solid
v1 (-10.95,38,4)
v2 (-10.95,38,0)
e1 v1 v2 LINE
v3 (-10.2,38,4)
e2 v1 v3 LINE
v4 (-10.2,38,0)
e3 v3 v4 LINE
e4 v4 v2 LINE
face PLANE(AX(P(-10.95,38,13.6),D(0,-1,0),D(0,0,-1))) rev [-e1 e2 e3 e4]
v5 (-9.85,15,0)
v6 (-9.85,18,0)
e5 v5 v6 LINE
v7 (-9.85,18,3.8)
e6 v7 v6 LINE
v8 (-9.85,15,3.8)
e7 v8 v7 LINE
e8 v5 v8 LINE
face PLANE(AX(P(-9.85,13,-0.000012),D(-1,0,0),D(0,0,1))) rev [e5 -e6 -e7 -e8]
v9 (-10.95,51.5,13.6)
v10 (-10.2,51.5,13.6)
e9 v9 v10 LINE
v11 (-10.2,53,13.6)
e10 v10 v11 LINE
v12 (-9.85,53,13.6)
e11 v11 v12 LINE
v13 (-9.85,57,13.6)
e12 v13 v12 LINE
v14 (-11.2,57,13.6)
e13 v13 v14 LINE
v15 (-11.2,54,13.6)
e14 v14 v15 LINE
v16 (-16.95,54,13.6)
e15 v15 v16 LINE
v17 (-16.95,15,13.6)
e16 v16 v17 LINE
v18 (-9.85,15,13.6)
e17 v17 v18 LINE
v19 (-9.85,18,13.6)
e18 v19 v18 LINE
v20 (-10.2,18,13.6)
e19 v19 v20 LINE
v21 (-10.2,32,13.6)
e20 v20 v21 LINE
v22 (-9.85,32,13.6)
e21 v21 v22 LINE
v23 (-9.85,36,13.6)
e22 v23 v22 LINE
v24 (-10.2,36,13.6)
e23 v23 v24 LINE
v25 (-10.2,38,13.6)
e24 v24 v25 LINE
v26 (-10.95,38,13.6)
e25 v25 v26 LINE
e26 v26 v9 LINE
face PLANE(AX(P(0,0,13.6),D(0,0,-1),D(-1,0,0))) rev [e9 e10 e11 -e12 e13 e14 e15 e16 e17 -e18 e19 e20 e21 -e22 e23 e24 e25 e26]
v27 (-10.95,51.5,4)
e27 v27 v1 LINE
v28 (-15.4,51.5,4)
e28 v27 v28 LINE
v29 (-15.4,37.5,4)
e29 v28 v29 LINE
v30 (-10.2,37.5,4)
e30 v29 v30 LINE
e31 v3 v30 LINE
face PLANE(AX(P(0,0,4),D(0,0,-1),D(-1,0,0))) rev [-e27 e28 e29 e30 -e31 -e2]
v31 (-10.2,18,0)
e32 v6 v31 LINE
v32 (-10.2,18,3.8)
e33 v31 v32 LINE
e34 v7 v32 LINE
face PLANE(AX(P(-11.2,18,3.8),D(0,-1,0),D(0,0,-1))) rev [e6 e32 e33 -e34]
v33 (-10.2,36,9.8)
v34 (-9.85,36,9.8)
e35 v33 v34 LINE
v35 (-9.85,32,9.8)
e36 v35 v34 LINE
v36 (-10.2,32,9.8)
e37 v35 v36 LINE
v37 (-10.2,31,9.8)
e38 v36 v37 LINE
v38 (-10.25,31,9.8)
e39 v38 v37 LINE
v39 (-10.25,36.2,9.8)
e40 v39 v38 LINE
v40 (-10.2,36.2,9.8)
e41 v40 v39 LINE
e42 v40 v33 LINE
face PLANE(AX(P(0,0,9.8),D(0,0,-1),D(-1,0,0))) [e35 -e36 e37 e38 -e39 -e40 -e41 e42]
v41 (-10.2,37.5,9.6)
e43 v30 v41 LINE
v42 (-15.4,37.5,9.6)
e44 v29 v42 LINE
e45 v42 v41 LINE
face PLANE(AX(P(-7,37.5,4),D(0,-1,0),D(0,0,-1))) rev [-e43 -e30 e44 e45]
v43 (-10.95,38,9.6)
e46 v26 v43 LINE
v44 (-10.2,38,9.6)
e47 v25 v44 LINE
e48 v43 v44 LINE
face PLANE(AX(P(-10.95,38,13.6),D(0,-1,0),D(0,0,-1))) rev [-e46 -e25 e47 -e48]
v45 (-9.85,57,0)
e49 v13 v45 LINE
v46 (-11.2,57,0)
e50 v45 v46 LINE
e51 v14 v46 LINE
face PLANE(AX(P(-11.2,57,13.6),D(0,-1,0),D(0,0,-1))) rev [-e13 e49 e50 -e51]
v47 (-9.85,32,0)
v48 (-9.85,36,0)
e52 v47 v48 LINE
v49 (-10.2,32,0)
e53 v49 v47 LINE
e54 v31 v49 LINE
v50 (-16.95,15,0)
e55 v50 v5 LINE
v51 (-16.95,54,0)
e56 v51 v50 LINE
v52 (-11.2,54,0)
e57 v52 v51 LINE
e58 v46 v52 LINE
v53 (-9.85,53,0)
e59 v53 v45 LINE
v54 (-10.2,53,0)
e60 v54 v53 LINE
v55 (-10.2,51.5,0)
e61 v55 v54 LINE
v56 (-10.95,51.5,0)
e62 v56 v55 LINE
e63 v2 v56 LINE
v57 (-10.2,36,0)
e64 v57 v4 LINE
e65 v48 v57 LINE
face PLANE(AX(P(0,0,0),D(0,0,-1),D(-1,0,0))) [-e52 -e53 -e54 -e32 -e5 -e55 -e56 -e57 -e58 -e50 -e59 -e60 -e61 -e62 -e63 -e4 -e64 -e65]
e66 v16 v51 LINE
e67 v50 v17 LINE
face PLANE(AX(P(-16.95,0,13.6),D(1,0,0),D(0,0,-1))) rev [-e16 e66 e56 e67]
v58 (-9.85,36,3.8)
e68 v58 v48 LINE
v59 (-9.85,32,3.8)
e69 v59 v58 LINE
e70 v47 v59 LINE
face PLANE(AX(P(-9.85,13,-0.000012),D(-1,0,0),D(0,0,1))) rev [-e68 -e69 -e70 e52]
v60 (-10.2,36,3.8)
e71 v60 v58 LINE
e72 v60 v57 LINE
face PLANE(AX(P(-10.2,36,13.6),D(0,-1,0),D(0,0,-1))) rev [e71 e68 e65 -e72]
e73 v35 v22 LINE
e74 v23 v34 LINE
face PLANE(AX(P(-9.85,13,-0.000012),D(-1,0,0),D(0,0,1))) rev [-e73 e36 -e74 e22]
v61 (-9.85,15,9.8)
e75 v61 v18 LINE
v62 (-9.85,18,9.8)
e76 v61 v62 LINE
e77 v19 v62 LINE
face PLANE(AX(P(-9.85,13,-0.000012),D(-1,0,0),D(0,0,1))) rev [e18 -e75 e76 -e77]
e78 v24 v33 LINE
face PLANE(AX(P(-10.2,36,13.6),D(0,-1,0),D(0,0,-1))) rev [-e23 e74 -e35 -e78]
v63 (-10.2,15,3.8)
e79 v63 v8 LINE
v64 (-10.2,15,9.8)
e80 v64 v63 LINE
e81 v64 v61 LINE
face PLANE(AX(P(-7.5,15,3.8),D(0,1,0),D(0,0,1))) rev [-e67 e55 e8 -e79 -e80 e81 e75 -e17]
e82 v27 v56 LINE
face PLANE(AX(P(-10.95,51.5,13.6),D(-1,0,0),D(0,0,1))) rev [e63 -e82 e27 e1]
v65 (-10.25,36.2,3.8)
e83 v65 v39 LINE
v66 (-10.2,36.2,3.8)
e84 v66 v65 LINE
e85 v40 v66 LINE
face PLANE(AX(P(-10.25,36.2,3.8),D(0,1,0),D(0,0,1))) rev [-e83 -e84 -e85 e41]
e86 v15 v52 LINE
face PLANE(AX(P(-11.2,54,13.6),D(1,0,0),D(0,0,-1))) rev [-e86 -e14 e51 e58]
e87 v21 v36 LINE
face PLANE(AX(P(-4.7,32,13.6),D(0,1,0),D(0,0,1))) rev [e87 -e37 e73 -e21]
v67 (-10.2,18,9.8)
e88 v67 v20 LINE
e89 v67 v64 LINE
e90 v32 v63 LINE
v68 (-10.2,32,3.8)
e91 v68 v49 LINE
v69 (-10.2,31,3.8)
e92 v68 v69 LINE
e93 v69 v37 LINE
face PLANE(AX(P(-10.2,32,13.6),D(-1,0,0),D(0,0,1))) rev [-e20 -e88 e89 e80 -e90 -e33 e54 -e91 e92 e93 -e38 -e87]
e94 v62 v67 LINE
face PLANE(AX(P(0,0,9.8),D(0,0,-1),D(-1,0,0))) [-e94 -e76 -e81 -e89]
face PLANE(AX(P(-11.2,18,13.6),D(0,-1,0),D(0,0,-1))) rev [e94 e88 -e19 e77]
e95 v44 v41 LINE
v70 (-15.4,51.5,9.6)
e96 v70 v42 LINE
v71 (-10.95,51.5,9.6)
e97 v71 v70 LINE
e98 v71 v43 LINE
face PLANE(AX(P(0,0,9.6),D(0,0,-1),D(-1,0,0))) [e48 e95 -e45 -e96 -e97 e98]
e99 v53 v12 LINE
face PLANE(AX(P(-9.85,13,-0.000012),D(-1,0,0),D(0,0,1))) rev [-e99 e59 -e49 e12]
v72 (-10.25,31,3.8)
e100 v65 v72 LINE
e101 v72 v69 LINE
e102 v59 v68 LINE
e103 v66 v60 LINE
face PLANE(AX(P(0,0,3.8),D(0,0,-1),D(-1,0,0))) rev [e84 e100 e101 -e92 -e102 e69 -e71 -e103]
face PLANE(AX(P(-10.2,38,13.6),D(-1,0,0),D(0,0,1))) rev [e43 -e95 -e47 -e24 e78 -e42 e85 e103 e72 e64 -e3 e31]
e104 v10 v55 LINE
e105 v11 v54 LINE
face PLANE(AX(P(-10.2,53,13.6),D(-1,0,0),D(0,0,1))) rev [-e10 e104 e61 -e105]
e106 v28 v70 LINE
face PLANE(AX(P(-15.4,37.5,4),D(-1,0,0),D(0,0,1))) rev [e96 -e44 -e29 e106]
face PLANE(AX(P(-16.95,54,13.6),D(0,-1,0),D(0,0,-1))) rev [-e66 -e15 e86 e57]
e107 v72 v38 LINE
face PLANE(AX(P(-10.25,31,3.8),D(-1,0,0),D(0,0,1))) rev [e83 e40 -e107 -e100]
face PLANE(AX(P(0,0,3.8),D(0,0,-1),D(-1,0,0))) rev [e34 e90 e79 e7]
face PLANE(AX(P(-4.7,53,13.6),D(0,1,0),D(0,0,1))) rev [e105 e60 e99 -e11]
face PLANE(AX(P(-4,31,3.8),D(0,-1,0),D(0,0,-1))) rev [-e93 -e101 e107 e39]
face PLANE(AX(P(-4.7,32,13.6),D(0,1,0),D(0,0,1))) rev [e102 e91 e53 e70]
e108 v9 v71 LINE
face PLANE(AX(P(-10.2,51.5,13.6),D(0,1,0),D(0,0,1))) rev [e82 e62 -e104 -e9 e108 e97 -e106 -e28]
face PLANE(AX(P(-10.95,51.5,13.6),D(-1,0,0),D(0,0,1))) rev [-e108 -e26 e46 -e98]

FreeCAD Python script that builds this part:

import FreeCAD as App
import Part
import Sketcher
from FreeCAD import Vector

doc = App.newDocument("Part")
body = doc.addObject("PartDesign::Body", "Body")

# Sketch on XY plane
sketch1 = body.newObject("Sketcher::SketchObject", "Sketch")
sketch1.AttachmentSupport = (doc.getObject("XY_Plane"), [""])
sketch1.MapMode = "FlatFace"
sketch1.addGeometry([
    Part.LineSegment(Vector(-16.9, 0, 0), Vector(-10.2, 0, 0)),  # 0
    Part.LineSegment(Vector(-10.2, 0, 0), Vector(-10.2, 32, 0)),  # 1
    Part.LineSegment(Vector(-10.2, 32, 0), Vector(-4.7, 32, 0)),  # 2
    Part.LineSegment(Vector(-4.7, 32, 0), Vector(-4.7, 36, 0)),  # 3
    Part.LineSegment(Vector(-4.7, 36, 0), Vector(-10.2, 36, 0)),  # 4
    Part.LineSegment(Vector(-10.2, 36, 0), Vector(-10.2, 38, 0)),  # 5
    Part.LineSegment(Vector(-10.2, 38, 0), Vector(-10.9, 38, 0)),  # 6
    Part.LineSegment(Vector(-10.9, 38, 0), Vector(-10.9, 51.5, 0)),  # 7
    Part.LineSegment(Vector(-10.9, 51.5, 0), Vector(-10.2, 51.5, 0)),  # 8
    Part.LineSegment(Vector(-10.2, 51.5, 0), Vector(-10.2, 53, 0)),  # 9
    Part.LineSegment(Vector(-10.2, 53, 0), Vector(-4.7, 53, 0)),  # 10
    Part.LineSegment(Vector(-4.7, 53, 0), Vector(-4.7, 57, 0)),  # 11
    Part.LineSegment(Vector(-4.7, 57, 0), Vector(-11.2, 57, 0)),  # 12
    Part.LineSegment(Vector(-11.2, 57, 0), Vector(-11.2, 54, 0)),  # 13
    Part.LineSegment(Vector(-11.2, 54, 0), Vector(-16.9, 54, 0)),  # 14
    Part.LineSegment(Vector(-16.9, 54, 0), Vector(-16.9, 0, 0)),  # 15
], False)
sketch1.addConstraint([
    Sketcher.Constraint("Coincident", 0, 2, 1, 1),
    Sketcher.Constraint("Coincident", 1, 2, 2, 1),
    Sketcher.Constraint("Coincident", 2, 2, 3, 1),
    Sketcher.Constraint("Coincident", 3, 2, 4, 1),
    Sketcher.Constraint("Coincident", 4, 2, 5, 1),
    Sketcher.Constraint("Coincident", 5, 2, 6, 1),
    Sketcher.Constraint("Coincident", 6, 2, 7, 1),
    Sketcher.Constraint("Coincident", 7, 2, 8, 1),
    Sketcher.Constraint("Coincident", 8, 2, 9, 1),
    Sketcher.Constraint("Coincident", 9, 2, 10, 1),
    Sketcher.Constraint("Coincident", 10, 2, 11, 1),
    Sketcher.Constraint("Coincident", 11, 2, 12, 1),
    Sketcher.Constraint("Coincident", 12, 2, 13, 1),
    Sketcher.Constraint("Coincident", 13, 2, 14, 1),
    Sketcher.Constraint("Coincident", 14, 2, 15, 1),
    Sketcher.Constraint("Coincident", 15, 2, 0, 1),
    Sketcher.Constraint("Horizontal", 0),
    Sketcher.Constraint("Vertical", 1),
    Sketcher.Constraint("Horizontal", 2),
    Sketcher.Constraint("Vertical", 3),
    Sketcher.Constraint("Horizontal", 4),
    Sketcher.Constraint("Vertical", 5),
    Sketcher.Constraint("Horizontal", 6),
    Sketcher.Constraint("Vertical", 7),
    Sketcher.Constraint("Horizontal", 8),
    Sketcher.Constraint("Vertical", 9),
    Sketcher.Constraint("Horizontal", 10),
    Sketcher.Constraint("Vertical", 11),
    Sketcher.Constraint("Horizontal", 12),
    Sketcher.Constraint("Vertical", 13),
    Sketcher.Constraint("Horizontal", 14),
    Sketcher.Constraint("Vertical", 15),
    Sketcher.Constraint("PointOnObject", 0, 2, -1),
    Sketcher.Constraint("Vertical", 1, 2, 4, 2),
    Sketcher.Constraint("Vertical", 5, 2, 8, 2),
    Sketcher.Constraint("Vertical", 3, 2, 10, 2),
    Sketcher.Constraint("Equal", 3, 11),
    Sketcher.Constraint("DistanceY", 1, 1, 1, 2, 32.0),
    Sketcher.Constraint("DistanceY", 3, 1, 3, 2, 4.0),
    Sketcher.Constraint("DistanceY", 5, 1, 5, 2, 2.0),
    Sketcher.Constraint("DistanceY", 13, 2, 13, 1, 3.0),
    Sketcher.Constraint("DistanceY", 15, 2, 15, 1, 54.0),
    Sketcher.Constraint("DistanceX", 2, 1, 2, 2, 5.5),
    Sketcher.Constraint("DistanceX", 12, 2, 12, 1, 6.5),
    Sketcher.Constraint("DistanceY", 7, 1, 7, 2, 13.5),
    Sketcher.Constraint("DistanceX", 14, 2, 7, 2, 6.0),
    Sketcher.Constraint("DistanceX", 0, 1, 0, 2, 6.75),
    Sketcher.Constraint("DistanceX", 0, 2, -1, 1, 10.2),
])
pad1 = body.newObject("PartDesign::Pad", "Pad")
pad1.Profile = sketch1
pad1.Length = 13.6

# Sketch on XY plane
sketch2 = body.newObject("Sketcher::SketchObject", "Sketch001")
sketch2.AttachmentSupport = (doc.getObject("XY_Plane"), [""])
sketch2.MapMode = "FlatFace"
sketch2.AttachmentOffset = App.Placement(Vector(0, 0, 6.8), App.Rotation())
sketch2.addGeometry([
    Part.LineSegment(Vector(-15, 52, 0), Vector(-15, 38, 0)),
    Part.LineSegment(Vector(-15, 38, 0), Vector(-7, 38, 0)),
    Part.LineSegment(Vector(-7, 38, 0), Vector(-7, 52, 0)),
    Part.LineSegment(Vector(-7, 52, 0), Vector(-15, 52, 0)),
], False)
sketch2.addConstraint([
    Sketcher.Constraint("Coincident", 0, 2, 1, 1),
    Sketcher.Constraint("Coincident", 1, 2, 2, 1),
    Sketcher.Constraint("Coincident", 2, 2, 3, 1),
    Sketcher.Constraint("Coincident", 3, 2, 0, 1),
    Sketcher.Constraint("Vertical", 0),
    Sketcher.Constraint("Horizontal", 1),
    Sketcher.Constraint("Vertical", 2),
    Sketcher.Constraint("Horizontal", 3),
    Sketcher.Constraint("DistanceY", 0, 2, 0, 1, 14.0),
    Sketcher.Constraint("DistanceX", 1, 1, 1, 2, 8.4),
    Sketcher.Constraint("DistanceX", 1, 2, -1, 1, 7.0),
    Sketcher.Constraint("DistanceY", -1, 1, 0, 2, 37.5),
])
pocket1 = body.newObject("PartDesign::Pocket", "Pocket")
pocket1.Profile = sketch2
pocket1.Length = 5.6
pocket1.Midplane = True

# Sketch on XY plane
sketch3 = body.newObject("Sketcher::SketchObject", "Sketch002")
sketch3.AttachmentSupport = (doc.getObject("XY_Plane"), [""])
sketch3.MapMode = "FlatFace"
sketch3.AttachmentOffset = App.Placement(Vector(0, 0, 6.8), App.Rotation())
sketch3.addGeometry([
    Part.LineSegment(Vector(-10, 36, 0), Vector(-10, 31, 0)),
    Part.LineSegment(Vector(-10, 31, 0), Vector(-4, 31, 0)),
    Part.LineSegment(Vector(-4, 31, 0), Vector(-4, 36, 0)),
    Part.LineSegment(Vector(-4, 36, 0), Vector(-10, 36, 0)),
], False)
sketch3.addConstraint([
    Sketcher.Constraint("Coincident", 0, 2, 1, 1),
    Sketcher.Constraint("Coincident", 1, 2, 2, 1),
    Sketcher.Constraint("Coincident", 2, 2, 3, 1),
    Sketcher.Constraint("Coincident", 3, 2, 0, 1),
    Sketcher.Constraint("Vertical", 0),
    Sketcher.Constraint("Horizontal", 1),
    Sketcher.Constraint("Vertical", 2),
    Sketcher.Constraint("Horizontal", 3),
    Sketcher.Constraint("DistanceY", 0, 2, 0, 1, 5.2),
    Sketcher.Constraint("DistanceY", -1, 1, 0, 2, 31.0),
    Sketcher.Constraint("DistanceX", 1, 2, -1, 1, 4.0),
    Sketcher.Constraint("DistanceX", 1, 1, 1, 2, 6.25),
])
pocket2 = body.newObject("PartDesign::Pocket", "Pocket001")
pocket2.Profile = sketch3
pocket2.Length = 6
pocket2.Midplane = True

# Sketch on XY plane
sketch4 = body.newObject("Sketcher::SketchObject", "Sketch003")
sketch4.AttachmentSupport = (doc.getObject("XY_Plane"), [""])
sketch4.MapMode = "FlatFace"
sketch4.addGeometry([
    Part.LineSegment(Vector(-11.2, 18, 0), Vector(-11.2, 15, 0)),
    Part.LineSegment(Vector(-11.2, 15, 0), Vector(-7.5, 15, 0)),
    Part.LineSegment(Vector(-7.5, 15, 0), Vector(-7.5, 18, 0)),
    Part.LineSegment(Vector(-7.5, 18, 0), Vector(-11.2, 18, 0)),
], False)
sketch4.addConstraint([
    Sketcher.Constraint("Coincident", 0, 2, 1, 1),
    Sketcher.Constraint("Coincident", 1, 2, 2, 1),
    Sketcher.Constraint("Coincident", 2, 2, 3, 1),
    Sketcher.Constraint("Coincident", 3, 2, 0, 1),
    Sketcher.Constraint("Vertical", 0),
    Sketcher.Constraint("Horizontal", 1),
    Sketcher.Constraint("Vertical", 2),
    Sketcher.Constraint("Horizontal", 3),
    Sketcher.Constraint("DistanceY", 0, 2, 0, 1, 3.0),
    Sketcher.Constraint("DistanceX", 1, 1, 1, 2, 3.7),
    Sketcher.Constraint("DistanceY", -1, 1, 0, 2, 15.0),
    Sketcher.Constraint("DistanceX", 0, 2, -1, 1, 11.2),
])
pad2 = body.newObject("PartDesign::Pad", "Pad001")
pad2.Profile = sketch4
pad2.Length = 3.8

# Sketch on XY plane
sketch5 = body.newObject("Sketcher::SketchObject", "Sketch004")
sketch5.AttachmentSupport = (doc.getObject("XY_Plane"), [""])
sketch5.MapMode = "FlatFace"
sketch5.AttachmentOffset = App.Placement(Vector(0, 0, 9.8), App.Rotation())
sketch5.addGeometry([
    Part.LineSegment(Vector(-11.2, 18, 0), Vector(-11.2, 15, 0)),
    Part.LineSegment(Vector(-11.2, 15, 0), Vector(-7.5, 15, 0)),
    Part.LineSegment(Vector(-7.5, 15, 0), Vector(-7.5, 18, 0)),
    Part.LineSegment(Vector(-7.5, 18, 0), Vector(-11.2, 18, 0)),
], False)
sketch5.addConstraint([
    Sketcher.Constraint("Coincident", 0, 2, 1, 1),
    Sketcher.Constraint("Coincident", 1, 2, 2, 1),
    Sketcher.Constraint("Coincident", 2, 2, 3, 1),
    Sketcher.Constraint("Coincident", 3, 2, 0, 1),
    Sketcher.Constraint("Vertical", 0),
    Sketcher.Constraint("Horizontal", 1),
    Sketcher.Constraint("Vertical", 2),
    Sketcher.Constraint("Horizontal", 3),
    Sketcher.Constraint("DistanceY", 0, 2, 0, 1, 3.0),
    Sketcher.Constraint("DistanceX", 1, 1, 1, 2, 3.7),
    Sketcher.Constraint("DistanceY", -1, 1, 0, 2, 15.0),
    Sketcher.Constraint("DistanceX", 0, 2, -1, 1, 11.2),
])
pad3 = body.newObject("PartDesign::Pad", "Pad002")
pad3.Profile = sketch5
pad3.Length = 3.8

# Sketch on XY plane
sketch6 = body.newObject("Sketcher::SketchObject", "Sketch005")
sketch6.AttachmentSupport = (doc.getObject("XY_Plane"), [""])
sketch6.MapMode = "FlatFace"
sketch6.addGeometry([
    Part.LineSegment(Vector(-20, 15, 0), Vector(-20, -2, 0)),
    Part.LineSegment(Vector(-20, -2, 0), Vector(-3, -2, 0)),
    Part.LineSegment(Vector(-3, -2, 0), Vector(-3, 15, 0)),
    Part.LineSegment(Vector(-3, 15, 0), Vector(-20, 15, 0)),
], False)
sketch6.addConstraint([
    Sketcher.Constraint("Coincident", 0, 2, 1, 1),
    Sketcher.Constraint("Coincident", 1, 2, 2, 1),
    Sketcher.Constraint("Coincident", 2, 2, 3, 1),
    Sketcher.Constraint("Coincident", 3, 2, 0, 1),
    Sketcher.Constraint("Vertical", 0),
    Sketcher.Constraint("Horizontal", 1),
    Sketcher.Constraint("Vertical", 2),
    Sketcher.Constraint("Horizontal", 3),
    Sketcher.Constraint("Equal", 3, 0),
    Sketcher.Constraint("DistanceX", 1, 1, 1, 2, 17.0),
    Sketcher.Constraint("DistanceX", 0, 2, -1, 1, 20.0),
    Sketcher.Constraint("DistanceY", 0, 2, -1, 1, 2.0),
])
pocket3 = body.newObject("PartDesign::Pocket", "Pocket002")
pocket3.Profile = sketch6
pocket3.Type = "ThroughAll"
pocket3.Midplane = True

# Sketch on XY plane
sketch7 = body.newObject("Sketcher::SketchObject", "Sketch006")
sketch7.AttachmentSupport = (doc.getObject("XY_Plane"), [""])
sketch7.MapMode = "FlatFace"
sketch7.addGeometry([
    Part.LineSegment(Vector(-10, 59, 0), Vector(-10, 13, 0)),
    Part.LineSegment(Vector(-10, 13, 0), Vector(0, 13, 0)),
    Part.LineSegment(Vector(0, 13, 0), Vector(0, 59, 0)),
    Part.LineSegment(Vector(0, 59, 0), Vector(-10, 59, 0)),
], False)
sketch7.addConstraint([
    Sketcher.Constraint("Coincident", 0, 2, 1, 1),
    Sketcher.Constraint("Coincident", 1, 2, 2, 1),
    Sketcher.Constraint("Coincident", 2, 2, 3, 1),
    Sketcher.Constraint("Coincident", 3, 2, 0, 1),
    Sketcher.Constraint("Vertical", 0),
    Sketcher.Constraint("Horizontal", 1),
    Sketcher.Constraint("Vertical", 2),
    Sketcher.Constraint("Horizontal", 3),
    Sketcher.Constraint("PointOnObject", 1, 2, -2),
    Sketcher.Constraint("DistanceY", 0, 2, 0, 1, 46.0),
    Sketcher.Constraint("DistanceY", -1, 1, 0, 2, 13.0),
    Sketcher.Constraint("DistanceX", 1, 1, 1, 2, 9.85),
])
pocket4 = body.newObject("PartDesign::Pocket", "Pocket003")
pocket4.Profile = sketch7
pocket4.Type = "ThroughAll"
pocket4.Midplane = True

doc.recompute()
